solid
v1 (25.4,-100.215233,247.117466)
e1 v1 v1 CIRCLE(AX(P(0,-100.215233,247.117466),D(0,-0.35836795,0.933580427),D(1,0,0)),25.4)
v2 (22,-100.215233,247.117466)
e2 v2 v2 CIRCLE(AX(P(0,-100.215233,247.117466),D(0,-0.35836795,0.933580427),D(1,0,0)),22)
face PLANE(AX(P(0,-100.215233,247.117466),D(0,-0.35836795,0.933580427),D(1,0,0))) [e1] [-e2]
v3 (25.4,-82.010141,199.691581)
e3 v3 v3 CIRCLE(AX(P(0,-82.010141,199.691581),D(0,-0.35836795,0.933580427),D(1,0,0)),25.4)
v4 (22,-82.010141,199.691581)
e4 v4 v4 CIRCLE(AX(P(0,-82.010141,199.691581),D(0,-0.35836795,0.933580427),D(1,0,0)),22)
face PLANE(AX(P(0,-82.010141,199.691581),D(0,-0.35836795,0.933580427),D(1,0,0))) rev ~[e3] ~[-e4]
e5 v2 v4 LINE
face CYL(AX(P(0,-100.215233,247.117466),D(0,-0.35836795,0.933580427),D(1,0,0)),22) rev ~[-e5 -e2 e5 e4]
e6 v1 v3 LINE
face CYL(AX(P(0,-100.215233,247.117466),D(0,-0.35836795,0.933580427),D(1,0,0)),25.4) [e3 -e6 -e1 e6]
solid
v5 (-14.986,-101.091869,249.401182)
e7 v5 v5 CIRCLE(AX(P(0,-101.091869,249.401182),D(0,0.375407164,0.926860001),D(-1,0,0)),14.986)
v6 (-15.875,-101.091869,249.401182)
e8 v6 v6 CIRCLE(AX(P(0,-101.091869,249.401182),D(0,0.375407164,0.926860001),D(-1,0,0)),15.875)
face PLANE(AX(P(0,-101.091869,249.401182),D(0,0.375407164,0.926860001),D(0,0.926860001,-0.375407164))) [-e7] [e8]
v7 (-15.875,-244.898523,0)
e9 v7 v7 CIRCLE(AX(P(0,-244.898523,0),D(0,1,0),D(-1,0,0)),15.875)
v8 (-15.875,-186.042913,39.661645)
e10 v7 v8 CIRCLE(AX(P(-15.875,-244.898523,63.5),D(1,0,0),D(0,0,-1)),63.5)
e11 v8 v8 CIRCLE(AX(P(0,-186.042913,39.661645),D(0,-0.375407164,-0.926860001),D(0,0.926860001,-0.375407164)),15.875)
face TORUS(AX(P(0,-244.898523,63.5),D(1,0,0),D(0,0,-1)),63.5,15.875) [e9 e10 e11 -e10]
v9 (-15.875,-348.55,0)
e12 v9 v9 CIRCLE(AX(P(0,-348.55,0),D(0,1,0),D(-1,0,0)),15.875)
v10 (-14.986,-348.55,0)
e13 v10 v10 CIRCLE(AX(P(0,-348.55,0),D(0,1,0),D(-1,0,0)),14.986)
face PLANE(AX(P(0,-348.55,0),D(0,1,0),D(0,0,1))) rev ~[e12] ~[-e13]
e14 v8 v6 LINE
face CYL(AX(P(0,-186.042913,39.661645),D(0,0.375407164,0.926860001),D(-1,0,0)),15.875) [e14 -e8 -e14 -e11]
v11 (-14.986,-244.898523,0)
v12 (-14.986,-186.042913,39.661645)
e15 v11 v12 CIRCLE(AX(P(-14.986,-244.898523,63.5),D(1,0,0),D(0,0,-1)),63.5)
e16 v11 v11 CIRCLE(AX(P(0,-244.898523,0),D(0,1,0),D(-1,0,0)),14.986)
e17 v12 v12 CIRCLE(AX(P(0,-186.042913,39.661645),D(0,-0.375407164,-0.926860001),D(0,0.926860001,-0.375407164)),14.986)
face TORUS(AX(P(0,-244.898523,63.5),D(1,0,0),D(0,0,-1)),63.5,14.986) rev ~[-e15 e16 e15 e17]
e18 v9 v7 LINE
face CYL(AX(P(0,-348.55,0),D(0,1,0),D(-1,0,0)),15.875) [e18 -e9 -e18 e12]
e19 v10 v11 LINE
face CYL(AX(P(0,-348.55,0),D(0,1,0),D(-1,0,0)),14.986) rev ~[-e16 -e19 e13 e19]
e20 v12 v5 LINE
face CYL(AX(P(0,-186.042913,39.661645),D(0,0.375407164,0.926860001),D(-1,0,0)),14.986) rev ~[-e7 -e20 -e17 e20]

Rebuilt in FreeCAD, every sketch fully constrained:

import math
import FreeCAD as App
import Part
import Sketcher
Q = App.Units.Quantity

doc = App.newDocument("Part")
body = doc.addObject("PartDesign::Body", "Body")

# Sketch on an angled plane
sketch1 = body.newObject("Sketcher::SketchObject", "Sketch")
sketch1.Placement = App.Placement(App.Vector(0, -95.547331, 248.909306), App.Rotation(App.Vector(1, 0, 0), App.Vector(0, 0.933580427, 0.35836795), App.Vector(0, -0.35836795, 0.933580427), "ZXY"))
sketch1.addGeometry([
    Part.Circle(App.Vector(0, -5, 0), App.Vector(0, 0, 1), 25.4),
    Part.Circle(App.Vector(0, -5, 0), App.Vector(0, 0, 1), 22),
], False)
sketch1.addConstraint([
    Sketcher.Constraint("Coincident", 1, 3, 0, 3),
    Sketcher.Constraint("PointOnObject", 0, 3, -2),
    Sketcher.Constraint("Diameter", 0, Q("2 in")),
    Sketcher.Constraint("Diameter", 1, Q("44 mm")),
    Sketcher.Constraint("DistanceY", 0, 3, -1, 1, Q("5 mm")),
])
pad1 = body.newObject("PartDesign::Pad", "Pad")
pad1.Profile = sketch1
pad1.Length = Q("2 in")
pad1.Reversed = True
body2 = doc.addObject("PartDesign::Body", "Body001")

# Sketch on XZ plane
sketch2 = body2.newObject("Sketcher::SketchObject", "Sketch001")
sketch2.AttachmentSupport = (doc.getObject("XZ_Plane001"), [""])
sketch2.MapMode = "FlatFace"
sketch2.AttachmentOffset = App.Placement(App.Vector(0, 0, 348.55), App.Rotation())
sketch2.addGeometry([
    Part.Circle(App.Vector(0, 0, 0), App.Vector(0, 0, 1), 15.875),
    Part.Circle(App.Vector(0, 0, 0), App.Vector(0, 0, 1), 14.986),
], False)
sketch2.addConstraint([
    Sketcher.Constraint("Coincident", 0, 3, -1, 1),
    Sketcher.Constraint("Coincident", 1, 3, -1, 1),
    Sketcher.Constraint("Diameter", 0, Q("1.25 in")),
    Sketcher.Constraint("Diameter", 1, Q("1.18 in")),
])

# Sketch on YZ plane
sketch3 = body2.newObject("Sketcher::SketchObject", "Sketch002")
sketch3.AttachmentSupport = (doc.getObject("YZ_Plane001"), [""])
sketch3.MapMode = "FlatFace"
sketch3.addGeometry([
    Part.LineSegment(App.Vector(-348.55, 0, 0), App.Vector(-244.898523, 0, 0)),
    Part.ArcOfCircle(Part.Circle(App.Vector(-244.898523, 63.5, 0), App.Vector(0, 0, 1), 63.5), math.radians(-90), math.radians(-22.04948)),
    Part.LineSegment(App.Vector(-186.042913, 39.661645, 0), App.Vector(-101.091869, 249.401182, 0)),
], False)
sketch3.addConstraint([
    Sketcher.Constraint("Tangent", 0, 2, 1, 1),
    Sketcher.Constraint("Tangent", 1, 2, 2, 1),
    Sketcher.Constraint("Horizontal", 0),
    Sketcher.Constraint("PointOnObject", 0, 1, -1),
    Sketcher.Constraint("Radius", 1, Q("2.5 in")),
    Sketcher.Constraint("DistanceX", 0, 1, -1, 1, Q("348.55 mm")),
    Sketcher.Constraint("DistanceX", 0, 1, 0, 2, Q("103.651477 mm")),
    Sketcher.Constraint("DistanceX", 2, 2, -1, 1, Q("101.091869 mm")),
    Sketcher.Constraint("DistanceY", -1, 1, 2, 2, Q("249.401182 mm")),
])
doc.recompute()

additivepipe = body2.newObject("PartDesign::AdditivePipe", "AdditivePipe")
additivepipe.Profile = sketch2
additivepipe.Spine = (sketch3, ["Edge1", "Edge2", "Edge3"])

doc.recompute()
